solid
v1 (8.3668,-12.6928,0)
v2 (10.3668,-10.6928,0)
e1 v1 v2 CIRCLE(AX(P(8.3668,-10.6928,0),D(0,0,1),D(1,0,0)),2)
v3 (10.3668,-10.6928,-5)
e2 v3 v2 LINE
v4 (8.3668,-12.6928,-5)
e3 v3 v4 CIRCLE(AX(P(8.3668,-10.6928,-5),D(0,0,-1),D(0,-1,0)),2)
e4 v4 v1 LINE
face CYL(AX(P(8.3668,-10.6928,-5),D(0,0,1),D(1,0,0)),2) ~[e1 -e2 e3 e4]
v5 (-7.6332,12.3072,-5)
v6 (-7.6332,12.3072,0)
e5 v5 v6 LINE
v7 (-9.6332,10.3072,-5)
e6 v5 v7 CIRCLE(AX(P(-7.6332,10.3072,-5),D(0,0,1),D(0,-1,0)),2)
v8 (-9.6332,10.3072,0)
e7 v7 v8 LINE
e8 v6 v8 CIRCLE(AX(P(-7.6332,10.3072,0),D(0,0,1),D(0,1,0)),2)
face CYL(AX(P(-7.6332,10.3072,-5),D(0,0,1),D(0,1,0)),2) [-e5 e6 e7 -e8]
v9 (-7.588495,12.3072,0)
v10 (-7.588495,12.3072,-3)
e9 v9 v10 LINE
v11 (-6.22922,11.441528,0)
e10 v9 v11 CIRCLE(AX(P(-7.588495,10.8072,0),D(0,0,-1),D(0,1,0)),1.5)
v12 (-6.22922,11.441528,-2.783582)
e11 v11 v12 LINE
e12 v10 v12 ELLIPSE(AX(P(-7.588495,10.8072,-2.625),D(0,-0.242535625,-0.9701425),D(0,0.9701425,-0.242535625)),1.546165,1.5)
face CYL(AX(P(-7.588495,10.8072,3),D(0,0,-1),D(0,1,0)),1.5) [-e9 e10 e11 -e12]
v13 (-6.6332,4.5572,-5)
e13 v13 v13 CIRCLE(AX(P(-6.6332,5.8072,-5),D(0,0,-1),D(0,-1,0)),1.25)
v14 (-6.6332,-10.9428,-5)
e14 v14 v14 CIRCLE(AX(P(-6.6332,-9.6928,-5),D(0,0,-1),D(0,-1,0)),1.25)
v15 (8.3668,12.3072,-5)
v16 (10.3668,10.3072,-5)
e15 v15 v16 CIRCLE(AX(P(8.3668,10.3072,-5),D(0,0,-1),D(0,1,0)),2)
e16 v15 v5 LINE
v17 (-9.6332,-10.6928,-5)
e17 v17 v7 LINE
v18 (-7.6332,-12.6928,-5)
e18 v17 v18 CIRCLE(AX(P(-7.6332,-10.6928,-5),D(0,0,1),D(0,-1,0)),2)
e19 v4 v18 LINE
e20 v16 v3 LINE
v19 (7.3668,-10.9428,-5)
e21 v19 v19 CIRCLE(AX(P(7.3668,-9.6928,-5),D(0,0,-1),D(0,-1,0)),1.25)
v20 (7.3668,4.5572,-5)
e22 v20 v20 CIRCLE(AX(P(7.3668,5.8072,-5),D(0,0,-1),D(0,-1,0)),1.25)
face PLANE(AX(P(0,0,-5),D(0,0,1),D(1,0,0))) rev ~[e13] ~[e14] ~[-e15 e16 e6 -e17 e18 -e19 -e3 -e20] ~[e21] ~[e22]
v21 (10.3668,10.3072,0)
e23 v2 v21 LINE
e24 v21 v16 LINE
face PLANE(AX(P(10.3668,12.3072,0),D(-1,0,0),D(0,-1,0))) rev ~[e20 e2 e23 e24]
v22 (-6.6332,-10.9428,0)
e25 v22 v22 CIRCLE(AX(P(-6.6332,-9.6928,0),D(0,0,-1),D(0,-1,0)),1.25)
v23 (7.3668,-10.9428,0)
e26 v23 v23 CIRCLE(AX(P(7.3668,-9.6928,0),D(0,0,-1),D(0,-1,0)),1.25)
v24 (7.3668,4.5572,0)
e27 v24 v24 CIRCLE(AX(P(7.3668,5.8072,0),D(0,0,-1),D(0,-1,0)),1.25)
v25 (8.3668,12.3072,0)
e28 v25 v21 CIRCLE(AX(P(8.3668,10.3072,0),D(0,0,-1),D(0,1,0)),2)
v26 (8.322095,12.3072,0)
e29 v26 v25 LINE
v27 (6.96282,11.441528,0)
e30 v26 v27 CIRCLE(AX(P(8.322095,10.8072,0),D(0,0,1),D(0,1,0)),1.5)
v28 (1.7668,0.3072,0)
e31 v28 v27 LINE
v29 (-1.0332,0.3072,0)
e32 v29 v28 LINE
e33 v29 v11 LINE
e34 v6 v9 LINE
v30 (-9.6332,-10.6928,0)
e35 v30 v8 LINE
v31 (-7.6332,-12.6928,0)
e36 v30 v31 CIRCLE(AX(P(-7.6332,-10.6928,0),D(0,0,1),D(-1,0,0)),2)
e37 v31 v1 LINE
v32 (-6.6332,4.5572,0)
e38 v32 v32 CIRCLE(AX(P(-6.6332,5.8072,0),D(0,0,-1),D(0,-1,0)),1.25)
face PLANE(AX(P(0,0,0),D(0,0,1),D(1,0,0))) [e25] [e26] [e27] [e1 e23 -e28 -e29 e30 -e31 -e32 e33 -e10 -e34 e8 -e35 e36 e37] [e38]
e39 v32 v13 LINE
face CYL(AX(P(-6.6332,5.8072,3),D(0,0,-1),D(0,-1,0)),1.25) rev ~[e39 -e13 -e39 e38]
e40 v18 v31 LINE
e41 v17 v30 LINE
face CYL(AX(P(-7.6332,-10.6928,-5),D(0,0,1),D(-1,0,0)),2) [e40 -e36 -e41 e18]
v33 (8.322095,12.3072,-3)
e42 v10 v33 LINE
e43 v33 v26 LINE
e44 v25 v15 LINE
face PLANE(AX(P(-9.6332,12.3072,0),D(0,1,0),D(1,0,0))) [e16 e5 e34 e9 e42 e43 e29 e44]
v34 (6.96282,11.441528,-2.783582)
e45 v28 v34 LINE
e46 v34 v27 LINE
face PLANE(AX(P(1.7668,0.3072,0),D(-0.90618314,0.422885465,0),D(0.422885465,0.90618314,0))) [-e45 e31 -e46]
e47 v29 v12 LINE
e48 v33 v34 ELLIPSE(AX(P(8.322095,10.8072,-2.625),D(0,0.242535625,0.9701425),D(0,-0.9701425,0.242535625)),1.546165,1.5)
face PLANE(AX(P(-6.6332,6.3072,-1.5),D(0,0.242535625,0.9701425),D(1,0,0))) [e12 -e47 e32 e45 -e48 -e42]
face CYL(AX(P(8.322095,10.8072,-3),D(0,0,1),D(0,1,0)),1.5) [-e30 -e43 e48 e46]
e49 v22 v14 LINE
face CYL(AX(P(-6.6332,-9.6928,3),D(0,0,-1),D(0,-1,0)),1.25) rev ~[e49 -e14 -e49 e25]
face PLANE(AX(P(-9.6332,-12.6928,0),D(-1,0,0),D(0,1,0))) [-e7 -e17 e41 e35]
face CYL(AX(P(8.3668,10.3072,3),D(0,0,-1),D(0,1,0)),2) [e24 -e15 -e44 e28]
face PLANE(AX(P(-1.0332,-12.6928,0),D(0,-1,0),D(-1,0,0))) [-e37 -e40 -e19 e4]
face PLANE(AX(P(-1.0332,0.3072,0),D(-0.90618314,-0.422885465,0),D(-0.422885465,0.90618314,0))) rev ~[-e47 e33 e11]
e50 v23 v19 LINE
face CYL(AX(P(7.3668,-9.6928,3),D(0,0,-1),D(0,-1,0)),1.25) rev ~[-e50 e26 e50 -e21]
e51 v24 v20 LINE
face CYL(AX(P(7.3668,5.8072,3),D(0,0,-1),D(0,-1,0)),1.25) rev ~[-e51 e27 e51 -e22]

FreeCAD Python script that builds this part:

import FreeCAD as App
import Part
import Sketcher
Q = App.Units.Quantity


def edges_at(feature, points):
    """Names of the edges that pass closest to the given points."""
    edges = feature.Shape.Edges
    near = lambda p: min(range(len(edges)), key=lambda i: edges[i].distToShape(Part.Vertex(*p))[0])
    return sorted({f"Edge{near(p) + 1}" for p in points})


def add_polygon(sketch, points):
    """Adds a closed chain of lines whose ends are joined by coincident constraints."""
    first, n = sketch.GeometryCount, len(points)
    for a, b in zip(points, points[1:] + points[:1]):
        sketch.addGeometry(Part.LineSegment(App.Vector(*a, 0), App.Vector(*b, 0)), False)
    for i in range(n):
        sketch.addConstraint(Sketcher.Constraint("Coincident", first + i, 2, first + (i + 1) % n, 1))

doc = App.newDocument("Part")
body = doc.addObject("PartDesign::Body", "Body")
body.AllowCompound = True

sketch1 = body.newObject("Sketcher::SketchObject", "Sketch")
sketch1.AttachmentSupport = (doc.getObject("XY_Plane"), [""])
sketch1.MapMode = "FlatFace"
add_polygon(sketch1, [(-6.6332, 12.3072), (-9.6332, 12.3072), (-9.6332, -12.6928), (-1.0332, -12.6928), (-1.0332, -7.7928), (-4.3832, -7.7928), (-4.3832, -2.6928), (-1.0332, -2.6928), (-1.0332, 0.3072)])
add_polygon(sketch1, [(10.3668, 12.3072), (7.3668, 12.3072), (1.7668, 0.3072), (1.7668, -2.6928), (5.1168, -2.6928), (5.1168, -7.7928), (1.7668, -7.7928), (1.7668, -12.6928), (10.3668, -12.6928)])
sketch1.addConstraint([
    Sketcher.Constraint("Horizontal", 0),
    Sketcher.Constraint("Vertical", 1),
    Sketcher.Constraint("Horizontal", 2),
    Sketcher.Constraint("Vertical", 3),
    Sketcher.Constraint("Horizontal", 4),
    Sketcher.Constraint("Vertical", 5),
    Sketcher.Constraint("Horizontal", 6),
    Sketcher.Constraint("Vertical", 7),
    Sketcher.Constraint("Horizontal", 9),
    Sketcher.Constraint("Vertical", 11),
    Sketcher.Constraint("Horizontal", 12),
    Sketcher.Constraint("Vertical", 13),
    Sketcher.Constraint("Horizontal", 14),
    Sketcher.Constraint("Vertical", 15),
    Sketcher.Constraint("Horizontal", 16),
    Sketcher.Constraint("Vertical", 17),
    Sketcher.Constraint("Horizontal", 8, 2, 9, 2),
    Sketcher.Constraint("Horizontal", 7, 2, 10, 2),
    Sketcher.Constraint("Horizontal", 6, 2, 11, 2),
    Sketcher.Constraint("Horizontal", 4, 2, 13, 2),
    Sketcher.Constraint("Horizontal", 2, 2, 15, 2),
    Sketcher.Constraint("Vertical", 3, 2, 6, 2),
    Sketcher.Constraint("Vertical", 11, 2, 14, 2),
    Sketcher.Constraint("Equal", 0, 9),
    Sketcher.Constraint("Equal", 6, 12),
    Sketcher.Constraint("Equal", 2, 16),
    Sketcher.Constraint("Equal", 9, 7),
    Sketcher.Constraint("DistanceX", 0, 2, 0, 1, Q("3 mm")),
    Sketcher.Constraint("DistanceY", 1, 2, 1, 1, Q("25 mm")),
    Sketcher.Constraint("DistanceY", 3, 1, 3, 2, Q("4.9 mm")),
    Sketcher.Constraint("DistanceY", 5, 1, 5, 2, Q("5.1 mm")),
    Sketcher.Constraint("DistanceX", 4, 2, 4, 1, Q("3.35 mm")),
    Sketcher.Constraint("DistanceX", 7, 2, 10, 2, Q("2.8 mm")),
    Sketcher.Constraint("DistanceX", 1, 2, 4, 2, Q("5.25 mm")),
    Sketcher.Constraint("DistanceX", 0, 2, -1, 1, Q("9.6332 mm")),
    Sketcher.Constraint("DistanceY", -1, 1, 0, 2, Q("12.3072 mm")),
])
pad1 = body.newObject("PartDesign::Pad", "Pad")
pad1.Profile = sketch1
pad1.Length = 3

sketch2 = body.newObject("Sketcher::SketchObject", "Sketch001")
sketch2.AttachmentSupport = (doc.getObject("XY_Plane"), [""])
sketch2.MapMode = "FlatFace"
add_polygon(sketch2, [(-9.6332, 12.3072), (-9.6332, -12.6928), (10.3668, -12.6928), (10.3668, 12.3072)])
sketch2.addConstraint([
    Sketcher.Constraint("Vertical", 0),
    Sketcher.Constraint("Horizontal", 1),
    Sketcher.Constraint("Vertical", 2),
    Sketcher.Constraint("Horizontal", 3),
    Sketcher.Constraint("DistanceX", 1, 1, 1, 2, Q("20 mm")),
    Sketcher.Constraint("DistanceY", 0, 2, 0, 1, Q("25 mm")),
    Sketcher.Constraint("DistanceX", 0, 2, -1, 1, Q("9.6332 mm")),
    Sketcher.Constraint("DistanceY", 0, 2, -1, 1, Q("12.6928 mm")),
])
pad2 = body.newObject("PartDesign::Pad", "Pad001")
pad2.Profile = sketch2
pad2.Length = 5
pad2.Reversed = True
doc.recompute()

chamfer = body.newObject("PartDesign::Chamfer", "Chamfer")
chamfer.Base = (pad2, edges_at(pad2, [(0.367, 12.307, 0)]))
chamfer.ChamferType = "Two distances"
chamfer.Size = 12
chamfer.Size2 = 3
chamfer.FlipDirection = True

sketch3 = body.newObject("Sketcher::SketchObject", "Sketch002")
sketch3.AttachmentSupport = (doc.getObject("XY_Plane"), [""])
sketch3.MapMode = "FlatFace"
sketch3.AttachmentOffset = App.Placement(App.Vector(0, 0, 3), App.Rotation())
sketch3.addGeometry([
    Part.Circle(App.Vector(-6.6332, 5.8072, 0), App.Vector(0, 0, 1), 1.25),
    Part.Circle(App.Vector(7.3668, 5.8072, 0), App.Vector(0, 0, 1), 1.25),
    Part.Circle(App.Vector(-6.6332, -9.6928, 0), App.Vector(0, 0, 1), 1.25),
    Part.Circle(App.Vector(7.3668, -9.6928, 0), App.Vector(0, 0, 1), 1.25),
], False)
sketch3.addConstraint([
    Sketcher.Constraint("Equal", 0, 1),
    Sketcher.Constraint("Equal", 1, 2),
    Sketcher.Constraint("Equal", 2, 3),
    Sketcher.Constraint("Horizontal", 0, 3, 1, 3),
    Sketcher.Constraint("Horizontal", 2, 3, 3, 3),
    Sketcher.Constraint("Vertical", 0, 3, 2, 3),
    Sketcher.Constraint("Vertical", 1, 3, 3, 3),
    Sketcher.Constraint("Diameter", 0, Q("2.5 mm")),
    Sketcher.Constraint("DistanceX", 0, 3, 1, 3, Q("14 mm")),
    Sketcher.Constraint("DistanceY", 2, 3, 0, 3, Q("15.5 mm")),
    Sketcher.Constraint("DistanceX", 0, 3, -1, 1, Q("6.6332 mm")),
    Sketcher.Constraint("DistanceY", -1, 1, 0, 3, Q("5.8072 mm")),
])
doc.recompute()
hole = body.newObject("PartDesign::Hole", "Hole")
hole.Profile = sketch3
hole.ThreadType = "None"
hole.Diameter = 2.5
hole.DepthType = "ThroughAll"
doc.recompute()

fillet = body.newObject("PartDesign::Fillet", "Fillet")
fillet.Base = (hole, edges_at(hole, [(-6.633, 12.307, 0), (7.367, 12.307, 0)]))
fillet.Radius = 1.5
doc.recompute()

fillet2 = body.newObject("PartDesign::Fillet", "Fillet001")
fillet2.Base = (fillet, edges_at(fillet, [
    (-9.633, 12.307, -1),
    (10.367, 12.307, -1),
    (10.367, -12.693, -1),
    (-9.633, -12.693, -1),
]))
fillet2.Radius = 2

sketch4 = body.newObject("Sketcher::SketchObject", "Sketch003")
sketch4.AttachmentSupport = (doc.getObject("XY_Plane"), [""])
sketch4.MapMode = "FlatFace"
sketch4.AttachmentOffset = App.Placement(App.Vector(0, 0, 3), App.Rotation())
add_polygon(sketch4, [(16.1134, 14.5378), (-13.7185, 14.5378), (-13.7185, -15.8403), (16.1134, -15.8403)])
sketch4.addConstraint([
    Sketcher.Constraint("Horizontal", 0),
    Sketcher.Constraint("Vertical", 1),
    Sketcher.Constraint("Horizontal", 2),
    Sketcher.Constraint("Vertical", 3),
    Sketcher.Constraint("DistanceX", 0, 2, 0, 1, Q("29.832 mm")),
    Sketcher.Constraint("DistanceY", 1, 2, 1, 1, Q("30.378 mm")),
    Sketcher.Constraint("DistanceX", 0, 2, -1, 1, Q("13.7185 mm")),
    Sketcher.Constraint("DistanceY", -1, 1, 0, 2, Q("14.5378 mm")),
])
pocket1 = body.newObject("PartDesign::Pocket", "Pocket")
pocket1.Profile = sketch4
pocket1.Length = 3

doc.recompute()
